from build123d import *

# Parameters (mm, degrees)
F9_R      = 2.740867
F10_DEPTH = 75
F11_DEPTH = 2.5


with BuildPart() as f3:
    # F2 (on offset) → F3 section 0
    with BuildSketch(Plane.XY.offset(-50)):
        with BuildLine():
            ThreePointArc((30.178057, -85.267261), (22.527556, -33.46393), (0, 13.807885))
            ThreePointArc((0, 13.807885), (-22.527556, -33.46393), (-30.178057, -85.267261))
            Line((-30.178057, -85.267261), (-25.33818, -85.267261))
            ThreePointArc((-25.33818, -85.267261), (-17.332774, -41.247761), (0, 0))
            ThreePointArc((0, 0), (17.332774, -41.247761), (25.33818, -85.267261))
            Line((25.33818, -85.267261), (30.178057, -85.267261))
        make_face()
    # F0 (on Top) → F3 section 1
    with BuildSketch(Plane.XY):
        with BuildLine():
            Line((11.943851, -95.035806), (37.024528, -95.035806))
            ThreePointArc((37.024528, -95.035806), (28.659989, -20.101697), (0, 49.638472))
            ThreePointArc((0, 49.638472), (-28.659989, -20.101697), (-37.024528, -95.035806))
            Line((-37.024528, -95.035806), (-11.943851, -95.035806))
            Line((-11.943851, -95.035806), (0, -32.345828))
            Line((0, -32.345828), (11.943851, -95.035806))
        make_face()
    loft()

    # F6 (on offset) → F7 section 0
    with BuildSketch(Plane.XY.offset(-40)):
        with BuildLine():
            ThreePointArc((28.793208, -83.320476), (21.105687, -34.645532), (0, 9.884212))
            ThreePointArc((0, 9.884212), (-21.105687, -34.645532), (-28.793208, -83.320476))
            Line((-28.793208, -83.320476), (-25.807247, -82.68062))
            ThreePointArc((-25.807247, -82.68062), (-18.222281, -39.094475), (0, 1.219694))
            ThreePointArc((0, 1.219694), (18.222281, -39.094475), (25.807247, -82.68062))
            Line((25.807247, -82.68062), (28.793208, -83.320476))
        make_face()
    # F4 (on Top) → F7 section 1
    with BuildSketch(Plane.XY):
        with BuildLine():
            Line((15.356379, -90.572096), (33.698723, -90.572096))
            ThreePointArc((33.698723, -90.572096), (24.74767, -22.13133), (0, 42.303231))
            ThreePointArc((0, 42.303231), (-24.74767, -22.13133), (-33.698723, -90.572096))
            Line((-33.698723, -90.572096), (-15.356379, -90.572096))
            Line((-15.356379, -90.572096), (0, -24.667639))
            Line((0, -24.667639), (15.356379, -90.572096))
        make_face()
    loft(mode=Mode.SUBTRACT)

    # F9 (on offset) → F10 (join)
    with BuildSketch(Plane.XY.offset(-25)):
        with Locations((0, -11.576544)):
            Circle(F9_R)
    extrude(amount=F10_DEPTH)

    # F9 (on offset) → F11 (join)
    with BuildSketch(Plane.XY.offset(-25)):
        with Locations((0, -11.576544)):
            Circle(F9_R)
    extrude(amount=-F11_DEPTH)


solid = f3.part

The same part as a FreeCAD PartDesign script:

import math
import FreeCAD as App
import Part
import Sketcher

V = App.Vector
Q = App.Units.Quantity

doc = App.newDocument("Part")
body = doc.addObject("PartDesign::Body", "Body")

# Sketch on XY plane
sketch1 = body.newObject("Sketcher::SketchObject", "Sketch")
sketch1.AttachmentSupport = (doc.getObject("XY_Plane"), [""])
sketch1.MapMode = "FlatFace"
sketch1.AttachmentOffset = App.Placement(V(0, 0, -50), App.Rotation())
sketch1.addGeometry([
    Part.ArcOfCircle(Part.Circle(V(-146.141769, -84.840211, 0), V(0, 0, 1), 176.320344), math.radians(-0.138771), math.radians(34.019997)),  # 0
    Part.ArcOfCircle(Part.Circle(V(146.141769, -84.840211, 0), V(0, 0, 1), 176.320344), math.radians(145.980003), math.radians(180.138771)),  # 1
    Part.LineSegment(V(-30.178057, -85.267261, 0), V(-25.33818, -85.267261, 0)),  # 2
    Part.ArcOfCircle(Part.Circle(V(179.869305, -99.848703, 0), V(0, 0, 1), 205.72489), math.radians(150.964553), math.radians(175.935561)),  # 3
    Part.ArcOfCircle(Part.Circle(V(-179.869305, -99.848703, 0), V(0, 0, 1), 205.72489), math.radians(4.064439), math.radians(29.035447)),  # 4
    Part.LineSegment(V(25.33818, -85.267261, 0), V(30.178057, -85.267261, 0)),  # 5
], False)
sketch1.addConstraint([
    Sketcher.Constraint("Coincident", 0, 2, 1, 1),
    Sketcher.Constraint("Coincident", 1, 2, 2, 1),
    Sketcher.Constraint("Coincident", 2, 2, 3, 2),
    Sketcher.Constraint("Coincident", 3, 1, 4, 2),
    Sketcher.Constraint("Coincident", 4, 1, 5, 1),
    Sketcher.Constraint("Coincident", 5, 2, 0, 1),
    Sketcher.Constraint("Horizontal", 2),
    Sketcher.Constraint("Horizontal", 5),
    Sketcher.Constraint("Coincident", 3, 1, -1, 1),
    Sketcher.Constraint("Equal", 0, 1),
    Sketcher.Constraint("Equal", 3, 4),
    Sketcher.Constraint("Symmetric", 0, 3, 1, 3, -2),
    Sketcher.Constraint("Symmetric", 2, 2, 4, 1, -2),
    Sketcher.Constraint("Radius", 3, Q("205.72489 mm")),
    Sketcher.Constraint("Radius", 0, Q("176.320344 mm")),
    Sketcher.Constraint("DistanceX", 2, 1, 2, 2, Q("4.839877 mm")),
    Sketcher.Constraint("DistanceX", 0, 3, -1, 1, Q("146.141769 mm")),
    Sketcher.Constraint("DistanceY", 0, 3, -1, 1, Q("84.840211 mm")),
    Sketcher.Constraint("DistanceY", 1, 2, -1, 1, Q("85.267261 mm")),
])

# Sketch on XY plane
sketch2 = body.newObject("Sketcher::SketchObject", "Sketch001")
sketch2.AttachmentSupport = (doc.getObject("XY_Plane"), [""])
sketch2.MapMode = "FlatFace"
sketch2.addGeometry([
    Part.LineSegment(V(11.943851, -95.035806, 0), V(37.024528, -95.035806, 0)),  # 0
    Part.ArcOfCircle(Part.Circle(V(-234.238246, -87.381681, 0), V(0, 0, 1), 271.370739), math.radians(-1.616266), math.radians(30.325954)),  # 1
    Part.ArcOfCircle(Part.Circle(V(234.238246, -87.381681, 0), V(0, 0, 1), 271.370739), math.radians(149.674046), math.radians(181.616266)),  # 2
    Part.LineSegment(V(-37.024528, -95.035806, 0), V(-11.943851, -95.035806, 0)),  # 3
    Part.LineSegment(V(-11.943851, -95.035806, 0), V(0, -32.345828, 0)),  # 4
    Part.LineSegment(V(0, -32.345828, 0), V(11.943851, -95.035806, 0)),  # 5
], False)
sketch2.addConstraint([
    Sketcher.Constraint("Coincident", 0, 2, 1, 1),
    Sketcher.Constraint("Coincident", 1, 2, 2, 1),
    Sketcher.Constraint("Coincident", 2, 2, 3, 1),
    Sketcher.Constraint("Coincident", 3, 2, 4, 1),
    Sketcher.Constraint("Coincident", 4, 2, 5, 1),
    Sketcher.Constraint("Coincident", 5, 2, 0, 1),
    Sketcher.Constraint("Horizontal", 0),
    Sketcher.Constraint("Horizontal", 3),
    Sketcher.Constraint("Equal", 1, 2),
    Sketcher.Constraint("Symmetric", 1, 3, 2, 3, -2),
    Sketcher.Constraint("Symmetric", 3, 2, 5, 2, -2),
    Sketcher.Constraint("PointOnObject", 4, 2, -2),
    Sketcher.Constraint("Radius", 1, Q("271.370739 mm")),
    Sketcher.Constraint("DistanceY", 4, 2, 1, 2, Q("81.9843 mm")),
    Sketcher.Constraint("DistanceX", 0, 1, 0, 2, Q("25.080677 mm")),
    Sketcher.Constraint("DistanceY", 1, 3, -1, 1, Q("87.381681 mm")),
    Sketcher.Constraint("DistanceX", 3, 2, -1, 1, Q("11.943851 mm")),
    Sketcher.Constraint("DistanceX", 1, 3, 2, 3, Q("468.476491 mm")),
])

additiveloft = body.newObject("PartDesign::AdditiveLoft", "AdditiveLoft")
additiveloft.Profile = sketch1
additiveloft.Sections = [sketch2]

# Sketch on XY plane
sketch3 = body.newObject("Sketcher::SketchObject", "Sketch002")
sketch3.AttachmentSupport = (doc.getObject("XY_Plane"), [""])
sketch3.MapMode = "FlatFace"
sketch3.AttachmentOffset = App.Placement(V(0, 0, -40), App.Rotation())
sketch3.addGeometry([
    Part.ArcOfCircle(Part.Circle(V(-144.102453, -85.682368, 0), V(0, 0, 1), 172.911793), math.radians(0.782657), math.radians(33.551739)),  # 0
    Part.ArcOfCircle(Part.Circle(V(144.102453, -85.682368, 0), V(0, 0, 1), 172.911793), math.radians(146.448261), math.radians(179.217343)),  # 1
    Part.LineSegment(V(-28.793208, -83.320476, 0), V(-25.807247, -82.68062, 0)),  # 2
    Part.ArcOfCircle(Part.Circle(V(149.875006, -90.80022, 0), V(0, 0, 1), 175.869787), math.radians(148.451002), math.radians(177.353814)),  # 3
    Part.ArcOfCircle(Part.Circle(V(-149.875006, -90.80022, 0), V(0, 0, 1), 175.869787), math.radians(2.646186), math.radians(31.548998)),  # 4
    Part.LineSegment(V(25.807247, -82.68062, 0), V(28.793208, -83.320476, 0)),  # 5
], False)
sketch3.addConstraint([
    Sketcher.Constraint("Coincident", 0, 2, 1, 1),
    Sketcher.Constraint("Coincident", 1, 2, 2, 1),
    Sketcher.Constraint("Coincident", 2, 2, 3, 2),
    Sketcher.Constraint("Coincident", 3, 1, 4, 2),
    Sketcher.Constraint("Coincident", 4, 1, 5, 1),
    Sketcher.Constraint("Coincident", 5, 2, 0, 1),
    Sketcher.Constraint("Equal", 0, 1),
    Sketcher.Constraint("Equal", 3, 4),
    Sketcher.Constraint("Symmetric", 0, 3, 1, 3, -2),
    Sketcher.Constraint("Symmetric", 3, 3, 4, 3, -2),
    Sketcher.Constraint("Horizontal", 2, 2, 4, 1),
    Sketcher.Constraint("Horizontal", 1, 2, 5, 2),
    Sketcher.Constraint("Radius", 0, Q("172.911793 mm")),
    Sketcher.Constraint("Radius", 3, Q("175.869787 mm")),
    Sketcher.Constraint("DistanceY", 4, 3, 2, 2, Q("8.1196 mm")),
    Sketcher.Constraint("DistanceX", 2, 2, 1, 3, Q("169.9097 mm")),
    Sketcher.Constraint("Distance", 2, Q("3.053748 mm")),
    Sketcher.Constraint("DistanceY", 3, 3, -1, 1, Q("90.80022 mm")),
    Sketcher.Constraint("DistanceY", -1, 1, 0, 2, Q("9.884212 mm")),
    Sketcher.Constraint("DistanceX", -1, 1, 5, 2, Q("28.793208 mm")),
])

# Sketch on XY plane
sketch4 = body.newObject("Sketcher::SketchObject", "Sketch003")
sketch4.AttachmentSupport = (doc.getObject("XY_Plane"), [""])
sketch4.MapMode = "FlatFace"
sketch4.addGeometry([
    Part.LineSegment(V(15.356379, -90.572096, 0), V(33.698723, -90.572096, 0)),  # 0
    Part.ArcOfCircle(Part.Circle(V(-258.626069, -93.998194, 0), V(0, 0, 1), 292.344868), math.radians(0.671486), math.radians(27.790182)),  # 1
    Part.ArcOfCircle(Part.Circle(V(258.626069, -93.998194, 0), V(0, 0, 1), 292.344868), math.radians(152.209818), math.radians(179.328514)),  # 2
    Part.LineSegment(V(-33.698723, -90.572096, 0), V(-15.356379, -90.572096, 0)),  # 3
    Part.LineSegment(V(-15.356379, -90.572096, 0), V(0, -24.667639, 0)),  # 4
    Part.LineSegment(V(0, -24.667639, 0), V(15.356379, -90.572096, 0)),  # 5
], False)
sketch4.addConstraint([
    Sketcher.Constraint("Coincident", 0, 2, 1, 1),
    Sketcher.Constraint("Coincident", 1, 2, 2, 1),
    Sketcher.Constraint("Coincident", 2, 2, 3, 1),
    Sketcher.Constraint("Coincident", 3, 2, 4, 1),
    Sketcher.Constraint("Coincident", 4, 2, 5, 1),
    Sketcher.Constraint("Coincident", 5, 2, 0, 1),
    Sketcher.Constraint("Horizontal", 0),
    Sketcher.Constraint("Horizontal", 3),
    Sketcher.Constraint("Equal", 1, 2),
    Sketcher.Constraint("Symmetric", 1, 3, 2, 3, -2),
    Sketcher.Constraint("Symmetric", 3, 2, 5, 2, -2),
    Sketcher.Constraint("PointOnObject", 4, 2, -2),
    Sketcher.Constraint("Radius", 1, Q("292.344868 mm")),
    Sketcher.Constraint("DistanceY", 2, 3, 0, 2, Q("3.426098 mm")),
    Sketcher.Constraint("DistanceX", 0, 1, 0, 2, Q("18.342344 mm")),
    Sketcher.Constraint("DistanceX", 1, 3, -1, 1, Q("258.626069 mm")),
    Sketcher.Constraint("DistanceY", 4, 2, -1, 1, Q("24.667639 mm")),
    Sketcher.Constraint("Distance", 4, Q("67.669903 mm")),
])

subtractiveloft = body.newObject("PartDesign::SubtractiveLoft", "SubtractiveLoft")
subtractiveloft.Profile = sketch3
subtractiveloft.Sections = [sketch4]

# Sketch on XY plane
sketch5 = body.newObject("Sketcher::SketchObject", "Sketch004")
sketch5.AttachmentSupport = (doc.getObject("XY_Plane"), [""])
sketch5.MapMode = "FlatFace"
sketch5.AttachmentOffset = App.Placement(V(0, 0, -25), App.Rotation())
sketch5.addGeometry(Part.Circle(V(0, -11.576544, 0), V(0, 0, 1), 2.740867), False)
sketch5.addConstraint([
    Sketcher.Constraint("PointOnObject", 0, 3, -2),
    Sketcher.Constraint("Diameter", 0, Q("5.481734 mm")),
    Sketcher.Constraint("DistanceY", 0, 3, -1, 1, Q("11.576544 mm")),
])
pad1 = body.newObject("PartDesign::Pad", "Pad")
pad1.Profile = sketch5
pad1.Length = 75

# Sketch on XY plane
sketch6 = body.newObject("Sketcher::SketchObject", "Sketch005")
sketch6.AttachmentSupport = (doc.getObject("XY_Plane"), [""])
sketch6.MapMode = "FlatFace"
sketch6.AttachmentOffset = App.Placement(V(0, 0, -25), App.Rotation())
sketch6.addGeometry(Part.Circle(V(0, -11.576544, 0), V(0, 0, 1), 2.740867), False)
sketch6.addConstraint([
    Sketcher.Constraint("PointOnObject", 0, 3, -2),
    Sketcher.Constraint("Diameter", 0, Q("5.481734 mm")),
    Sketcher.Constraint("DistanceY", 0, 3, -1, 1, Q("11.576544 mm")),
])
pad2 = body.newObject("PartDesign::Pad", "Pad001")
pad2.Profile = sketch6
pad2.Length = 2.5
pad2.Reversed = True

doc.recompute()
